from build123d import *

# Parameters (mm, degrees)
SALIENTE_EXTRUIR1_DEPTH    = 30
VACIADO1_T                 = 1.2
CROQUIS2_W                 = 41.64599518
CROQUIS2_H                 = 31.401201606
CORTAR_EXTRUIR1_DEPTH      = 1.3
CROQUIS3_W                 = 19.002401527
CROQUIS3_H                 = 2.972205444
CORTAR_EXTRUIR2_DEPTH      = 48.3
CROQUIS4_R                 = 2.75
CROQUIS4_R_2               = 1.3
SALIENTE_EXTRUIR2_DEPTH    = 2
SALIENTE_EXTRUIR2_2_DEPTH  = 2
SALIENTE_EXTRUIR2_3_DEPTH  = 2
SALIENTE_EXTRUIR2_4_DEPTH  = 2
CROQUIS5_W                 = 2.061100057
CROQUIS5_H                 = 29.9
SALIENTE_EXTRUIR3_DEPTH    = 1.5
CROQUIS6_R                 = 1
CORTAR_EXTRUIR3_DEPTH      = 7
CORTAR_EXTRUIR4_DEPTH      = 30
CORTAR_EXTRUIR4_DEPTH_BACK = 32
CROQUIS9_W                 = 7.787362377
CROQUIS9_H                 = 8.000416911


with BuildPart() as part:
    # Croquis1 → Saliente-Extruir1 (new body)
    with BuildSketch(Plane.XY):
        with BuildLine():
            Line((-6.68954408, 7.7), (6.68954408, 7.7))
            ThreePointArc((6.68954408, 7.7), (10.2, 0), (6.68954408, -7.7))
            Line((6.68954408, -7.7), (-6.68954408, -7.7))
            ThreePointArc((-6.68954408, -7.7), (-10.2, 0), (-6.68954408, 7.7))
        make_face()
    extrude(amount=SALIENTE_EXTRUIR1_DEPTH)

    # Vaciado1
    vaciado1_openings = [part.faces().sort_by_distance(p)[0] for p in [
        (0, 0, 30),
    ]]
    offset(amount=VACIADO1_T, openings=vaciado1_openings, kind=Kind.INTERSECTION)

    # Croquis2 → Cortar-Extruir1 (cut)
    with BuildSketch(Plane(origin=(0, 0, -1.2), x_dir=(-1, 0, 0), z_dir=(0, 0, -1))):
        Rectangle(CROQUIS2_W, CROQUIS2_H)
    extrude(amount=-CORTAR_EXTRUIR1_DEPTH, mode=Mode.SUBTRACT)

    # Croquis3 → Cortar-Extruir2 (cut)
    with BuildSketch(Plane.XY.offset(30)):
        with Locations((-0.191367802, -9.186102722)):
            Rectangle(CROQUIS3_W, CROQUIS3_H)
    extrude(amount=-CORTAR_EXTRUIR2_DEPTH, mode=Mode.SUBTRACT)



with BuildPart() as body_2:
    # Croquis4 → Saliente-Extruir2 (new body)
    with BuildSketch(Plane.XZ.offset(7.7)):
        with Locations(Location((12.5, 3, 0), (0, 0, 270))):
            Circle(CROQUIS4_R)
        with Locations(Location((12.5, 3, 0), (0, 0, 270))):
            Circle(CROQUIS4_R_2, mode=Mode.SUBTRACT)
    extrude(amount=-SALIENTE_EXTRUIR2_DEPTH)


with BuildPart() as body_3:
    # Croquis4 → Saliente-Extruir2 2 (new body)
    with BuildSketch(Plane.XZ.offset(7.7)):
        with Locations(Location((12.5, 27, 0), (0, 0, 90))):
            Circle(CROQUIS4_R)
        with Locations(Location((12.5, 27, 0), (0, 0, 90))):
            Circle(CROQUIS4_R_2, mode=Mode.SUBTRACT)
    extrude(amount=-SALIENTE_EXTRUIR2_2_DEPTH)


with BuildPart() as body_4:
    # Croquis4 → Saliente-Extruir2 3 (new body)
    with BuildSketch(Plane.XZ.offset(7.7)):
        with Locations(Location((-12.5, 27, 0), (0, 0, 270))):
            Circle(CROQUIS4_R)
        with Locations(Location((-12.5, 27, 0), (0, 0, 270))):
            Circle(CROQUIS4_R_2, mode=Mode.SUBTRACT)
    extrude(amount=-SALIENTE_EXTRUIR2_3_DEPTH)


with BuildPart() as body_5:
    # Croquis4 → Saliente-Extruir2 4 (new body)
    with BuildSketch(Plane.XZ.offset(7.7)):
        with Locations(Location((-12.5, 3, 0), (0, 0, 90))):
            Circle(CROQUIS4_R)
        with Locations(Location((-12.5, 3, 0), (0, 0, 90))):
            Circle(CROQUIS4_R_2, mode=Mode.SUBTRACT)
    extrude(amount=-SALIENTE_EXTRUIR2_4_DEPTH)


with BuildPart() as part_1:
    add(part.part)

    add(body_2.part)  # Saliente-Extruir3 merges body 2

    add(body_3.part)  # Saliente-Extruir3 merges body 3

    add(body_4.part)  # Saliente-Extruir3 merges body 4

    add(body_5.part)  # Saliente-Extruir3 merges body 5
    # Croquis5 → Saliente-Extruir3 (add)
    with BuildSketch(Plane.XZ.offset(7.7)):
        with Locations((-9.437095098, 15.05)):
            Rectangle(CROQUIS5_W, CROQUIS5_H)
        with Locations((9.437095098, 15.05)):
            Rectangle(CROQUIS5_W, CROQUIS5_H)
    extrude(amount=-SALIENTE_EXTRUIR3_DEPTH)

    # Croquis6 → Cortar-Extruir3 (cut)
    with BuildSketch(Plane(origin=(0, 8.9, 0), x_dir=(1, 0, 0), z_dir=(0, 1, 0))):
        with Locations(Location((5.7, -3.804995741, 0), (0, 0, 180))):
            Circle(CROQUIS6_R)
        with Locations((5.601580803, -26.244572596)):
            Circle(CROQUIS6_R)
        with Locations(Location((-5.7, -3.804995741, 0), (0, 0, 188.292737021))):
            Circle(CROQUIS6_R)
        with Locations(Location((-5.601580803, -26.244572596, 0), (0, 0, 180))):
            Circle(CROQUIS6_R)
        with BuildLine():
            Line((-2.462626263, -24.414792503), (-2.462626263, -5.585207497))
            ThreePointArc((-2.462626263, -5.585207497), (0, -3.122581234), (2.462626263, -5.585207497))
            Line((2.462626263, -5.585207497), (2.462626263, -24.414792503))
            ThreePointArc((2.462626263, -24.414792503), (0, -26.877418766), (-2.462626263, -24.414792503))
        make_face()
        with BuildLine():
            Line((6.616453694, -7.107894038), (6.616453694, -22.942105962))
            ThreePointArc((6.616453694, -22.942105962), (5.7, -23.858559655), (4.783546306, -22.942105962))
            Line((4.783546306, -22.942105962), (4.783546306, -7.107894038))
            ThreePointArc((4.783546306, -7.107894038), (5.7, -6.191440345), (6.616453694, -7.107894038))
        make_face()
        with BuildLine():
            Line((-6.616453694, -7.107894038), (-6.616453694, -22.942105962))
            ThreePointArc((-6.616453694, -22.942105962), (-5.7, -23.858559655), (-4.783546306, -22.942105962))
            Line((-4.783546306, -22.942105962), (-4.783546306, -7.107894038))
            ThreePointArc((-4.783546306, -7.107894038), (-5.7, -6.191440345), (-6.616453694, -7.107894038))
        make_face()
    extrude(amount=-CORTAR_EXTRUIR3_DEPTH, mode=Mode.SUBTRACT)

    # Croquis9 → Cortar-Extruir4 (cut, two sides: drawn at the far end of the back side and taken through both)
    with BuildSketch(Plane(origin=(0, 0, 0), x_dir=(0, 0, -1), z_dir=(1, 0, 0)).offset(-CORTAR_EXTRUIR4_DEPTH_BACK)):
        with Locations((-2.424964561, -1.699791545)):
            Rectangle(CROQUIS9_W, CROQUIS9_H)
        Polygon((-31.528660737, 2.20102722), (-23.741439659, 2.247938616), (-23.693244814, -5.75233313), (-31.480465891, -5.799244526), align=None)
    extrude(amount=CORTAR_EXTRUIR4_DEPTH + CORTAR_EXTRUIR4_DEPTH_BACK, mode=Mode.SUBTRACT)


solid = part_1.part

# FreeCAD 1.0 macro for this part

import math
import FreeCAD as App
import Part
import Sketcher


def faces_at(feature, points):
    """Names of the faces that lie closest to the given points."""
    faces = feature.Shape.Faces
    near = lambda p: min(range(len(faces)), key=lambda i: faces[i].distToShape(Part.Vertex(*p))[0])
    return sorted({f"Face{near(p) + 1}" for p in points})


def add_polygon(sketch, points):
    """Adds a closed chain of lines whose ends are joined by coincident constraints."""
    first, n = sketch.GeometryCount, len(points)
    for a, b in zip(points, points[1:] + points[:1]):
        sketch.addGeometry(Part.LineSegment(App.Vector(*a, 0), App.Vector(*b, 0)), False)
    for i in range(n):
        sketch.addConstraint(Sketcher.Constraint("Coincident", first + i, 2, first + (i + 1) % n, 1))

doc = App.newDocument("Part")
body = doc.addObject("PartDesign::Body", "Body")

# Sketch on XY plane
sketch1 = body.newObject("Sketcher::SketchObject", "Sketch")
sketch1.AttachmentSupport = (doc.getObject("XY_Plane"), [""])
sketch1.MapMode = "FlatFace"
sketch1.addGeometry([
    Part.LineSegment(App.Vector(7, 8, 0), App.Vector(-7, 8, 0)),
    Part.ArcOfCircle(Part.Circle(App.Vector(0, 0, 0), App.Vector(0, 0, 1), 10), math.radians(131), math.radians(229)),
    Part.LineSegment(App.Vector(-7, -8, 0), App.Vector(7, -8, 0)),
    Part.ArcOfCircle(Part.Circle(App.Vector(0, 0, 0), App.Vector(0, 0, 1), 10), math.radians(-49), math.radians(49)),
], False)
sketch1.addConstraint([
    Sketcher.Constraint("Coincident", 0, 2, 1, 1),
    Sketcher.Constraint("Coincident", 1, 2, 2, 1),
    Sketcher.Constraint("Coincident", 2, 2, 3, 1),
    Sketcher.Constraint("Coincident", 3, 2, 0, 1),
    Sketcher.Constraint("Horizontal", 0),
    Sketcher.Constraint("Horizontal", 2),
    Sketcher.Constraint("Coincident", 1, 3, -1, 1),
    Sketcher.Constraint("Coincident", 3, 3, -1, 1),
    Sketcher.Constraint("Equal", 1, 3),
    Sketcher.Constraint("Vertical", 0, 2, 1, 2),
    Sketcher.Constraint("Radius", 1, 10.2),
    Sketcher.Constraint("DistanceY", -1, 1, 0, 2, 7.7),
])
pad1 = body.newObject("PartDesign::Pad", "Pad")
pad1.Profile = sketch1
pad1.Length = 30
doc.recompute()

thickness = body.newObject("PartDesign::Thickness", "Thickness")
thickness.Base = (pad1, faces_at(pad1, [(0, 0, 30)]))
thickness.Value = 1.2
thickness.Reversed = False
thickness.Join = "Intersection"

# Sketch on XY plane
sketch2 = body.newObject("Sketcher::SketchObject", "Sketch001")
sketch2.AttachmentSupport = (doc.getObject("XY_Plane"), [""])
sketch2.MapMode = "FlatFace"
sketch2.AttachmentOffset = App.Placement(App.Vector(0, 0, -1.2), App.Rotation())
add_polygon(sketch2, [(21, 16), (21, -16), (-21, -16), (-21, 16)])  # lines 0-3
sketch2.addConstraint([
    Sketcher.Constraint("Vertical", 0),
    Sketcher.Constraint("Horizontal", 1),
    Sketcher.Constraint("Vertical", 2),
    Sketcher.Constraint("Horizontal", 3),
    Sketcher.Constraint("Symmetric", 0, 2, 2, 2, -1, 1),
    Sketcher.Constraint("DistanceY", 0, 2, 0, 1, 31.401202),
    Sketcher.Constraint("DistanceX", 1, 2, 1, 1, 41.645995),
])
pocket1 = body.newObject("PartDesign::Pocket", "Pocket")
pocket1.Profile = sketch2
pocket1.Length = 1.3
pocket1.Reversed = True

# Sketch on XY plane
sketch3 = body.newObject("Sketcher::SketchObject", "Sketch002")
sketch3.AttachmentSupport = (doc.getObject("XY_Plane"), [""])
sketch3.MapMode = "FlatFace"
sketch3.AttachmentOffset = App.Placement(App.Vector(0, 0, 30), App.Rotation())
add_polygon(sketch3, [(-9.7, -7.7), (-9.7, -10.7), (9.3, -10.7), (9.3, -7.7)])  # lines 0-3
sketch3.addConstraint([
    Sketcher.Constraint("Vertical", 0),
    Sketcher.Constraint("Horizontal", 1),
    Sketcher.Constraint("Vertical", 2),
    Sketcher.Constraint("Horizontal", 3),
    Sketcher.Constraint("DistanceY", 2, 2, -1, 1, 7.7),
    Sketcher.Constraint("DistanceX", 1, 1, 1, 2, 19.002402),
    Sketcher.Constraint("DistanceY", 0, 2, 0, 1, 2.972205),
    Sketcher.Constraint("DistanceX", 0, 2, -1, 1, 9.692569),
])
pocket2 = body.newObject("PartDesign::Pocket", "Pocket001")
pocket2.Profile = sketch3
pocket2.Length = 48.3
body2 = doc.addObject("PartDesign::Body", "Body001")

# Sketch on XZ plane
sketch4 = body2.newObject("Sketcher::SketchObject", "Sketch003")
sketch4.AttachmentSupport = (doc.getObject("XZ_Plane001"), [""])
sketch4.MapMode = "FlatFace"
sketch4.AttachmentOffset = App.Placement(App.Vector(0, 0, 7.7), App.Rotation())
sketch4.addGeometry([
    Part.Circle(App.Vector(12.5, 3, 0), App.Vector(0, 0, 1), 2.8),
    Part.Circle(App.Vector(12.5, 3, 0), App.Vector(0, 0, 1), 1.3),
], False)
sketch4.addConstraint([
    Sketcher.Constraint("Coincident", 1, 3, 0, 3),
    Sketcher.Constraint("Diameter", 0, 5.5),
    Sketcher.Constraint("Diameter", 1, 2.6),
    Sketcher.Constraint("DistanceY", -1, 1, 0, 3, 3.0),
    Sketcher.Constraint("DistanceX", -1, 1, 0, 3, 12.5),
])
pad2 = body2.newObject("PartDesign::Pad", "Pad001")
pad2.Profile = sketch4
pad2.Length = 2
pad2.Reversed = True
body3 = doc.addObject("PartDesign::Body", "Body002")

# Sketch on XZ plane
sketch5 = body3.newObject("Sketcher::SketchObject", "Sketch004")
sketch5.AttachmentSupport = (doc.getObject("XZ_Plane002"), [""])
sketch5.MapMode = "FlatFace"
sketch5.AttachmentOffset = App.Placement(App.Vector(0, 0, 7.7), App.Rotation())
sketch5.addGeometry([
    Part.Circle(App.Vector(12.5, 27, 0), App.Vector(0, 0, 1), 2.8),
    Part.Circle(App.Vector(12.5, 27, 0), App.Vector(0, 0, 1), 1.3),
], False)
sketch5.addConstraint([
    Sketcher.Constraint("Coincident", 1, 3, 0, 3),
    Sketcher.Constraint("Diameter", 0, 5.5),
    Sketcher.Constraint("Diameter", 1, 2.6),
    Sketcher.Constraint("DistanceY", -1, 1, 0, 3, 27.0),
    Sketcher.Constraint("DistanceX", -1, 1, 0, 3, 12.5),
])
pad3 = body3.newObject("PartDesign::Pad", "Pad002")
pad3.Profile = sketch5
pad3.Length = 2
pad3.Reversed = True
body4 = doc.addObject("PartDesign::Body", "Body003")

# Sketch on XZ plane
sketch6 = body4.newObject("Sketcher::SketchObject", "Sketch005")
sketch6.AttachmentSupport = (doc.getObject("XZ_Plane003"), [""])
sketch6.MapMode = "FlatFace"
sketch6.AttachmentOffset = App.Placement(App.Vector(0, 0, 7.7), App.Rotation())
sketch6.addGeometry([
    Part.Circle(App.Vector(-12.5, 27, 0), App.Vector(0, 0, 1), 2.8),
    Part.Circle(App.Vector(-12.5, 27, 0), App.Vector(0, 0, 1), 1.3),
], False)
sketch6.addConstraint([
    Sketcher.Constraint("Coincident", 1, 3, 0, 3),
    Sketcher.Constraint("Diameter", 0, 5.5),
    Sketcher.Constraint("Diameter", 1, 2.6),
    Sketcher.Constraint("DistanceY", -1, 1, 0, 3, 27.0),
    Sketcher.Constraint("DistanceX", 0, 3, -1, 1, 12.5),
])
pad4 = body4.newObject("PartDesign::Pad", "Pad003")
pad4.Profile = sketch6
pad4.Length = 2
pad4.Reversed = True
body5 = doc.addObject("PartDesign::Body", "Body004")

# Sketch on XZ plane
sketch7 = body5.newObject("Sketcher::SketchObject", "Sketch006")
sketch7.AttachmentSupport = (doc.getObject("XZ_Plane004"), [""])
sketch7.MapMode = "FlatFace"
sketch7.AttachmentOffset = App.Placement(App.Vector(0, 0, 7.7), App.Rotation())
sketch7.addGeometry([
    Part.Circle(App.Vector(-12.5, 3, 0), App.Vector(0, 0, 1), 2.8),
    Part.Circle(App.Vector(-12.5, 3, 0), App.Vector(0, 0, 1), 1.3),
], False)
sketch7.addConstraint([
    Sketcher.Constraint("Coincident", 1, 3, 0, 3),
    Sketcher.Constraint("Diameter", 0, 5.5),
    Sketcher.Constraint("Diameter", 1, 2.6),
    Sketcher.Constraint("DistanceY", -1, 1, 0, 3, 3.0),
    Sketcher.Constraint("DistanceX", 0, 3, -1, 1, 12.5),
])
pad5 = body5.newObject("PartDesign::Pad", "Pad004")
pad5.Profile = sketch7
pad5.Length = 2
pad5.Reversed = True
doc.recompute()

boolean = body.newObject("PartDesign::Boolean", "Boolean")
boolean.Type = "Fuse"
boolean.addObjects([body2])
doc.recompute()

boolean2 = body.newObject("PartDesign::Boolean", "Boolean001")
boolean2.Type = "Fuse"
boolean2.addObjects([body3])
doc.recompute()

boolean3 = body.newObject("PartDesign::Boolean", "Boolean002")
boolean3.Type = "Fuse"
boolean3.addObjects([body4])
doc.recompute()

boolean4 = body.newObject("PartDesign::Boolean", "Boolean003")
boolean4.Type = "Fuse"
boolean4.addObjects([body5])

# Sketch on XZ plane
sketch8 = body.newObject("Sketcher::SketchObject", "Sketch007")
sketch8.AttachmentSupport = (doc.getObject("XZ_Plane"), [""])
sketch8.MapMode = "FlatFace"
sketch8.AttachmentOffset = App.Placement(App.Vector(0, 0, 7.7), App.Rotation())
add_polygon(sketch8, [(-10.5, 30), (-10.5, 0.1), (-8.4, 0.1), (-8.4, 30)])  # lines 0-3
add_polygon(sketch8, [(8.4, 30), (8.4, 0.1), (10.5, 0.1), (10.5, 30)])  # lines 4-7
sketch8.addConstraint([
    Sketcher.Constraint("Vertical", 0),
    Sketcher.Constraint("Horizontal", 1),
    Sketcher.Constraint("Vertical", 2),
    Sketcher.Constraint("Horizontal", 3),
    Sketcher.Constraint("Vertical", 4),
    Sketcher.Constraint("Horizontal", 5),
    Sketcher.Constraint("Vertical", 6),
    Sketcher.Constraint("Horizontal", 7),
    Sketcher.Constraint("Symmetric", 1, 2, 4, 2, -2),
    Sketcher.Constraint("Symmetric", 3, 2, 6, 2, -2),
    Sketcher.Constraint("DistanceY", 0, 2, 0, 1, 29.9),
    Sketcher.Constraint("DistanceY", -1, 1, 2, 2, 30.0),
    Sketcher.Constraint("DistanceX", 1, 1, 1, 2, 2.0611),
    Sketcher.Constraint("DistanceX", 1, 2, 4, 2, 16.81309),
])
pad6 = body.newObject("PartDesign::Pad", "Pad005")
pad6.Profile = sketch8
pad6.Length = 1.5
pad6.Reversed = True

# Sketch on XZ plane
sketch9 = body.newObject("Sketcher::SketchObject", "Sketch008")
sketch9.AttachmentSupport = (doc.getObject("XZ_Plane"), [""])
sketch9.MapMode = "FlatFace"
sketch9.AttachmentOffset = App.Placement(App.Vector(0, 0, -8.9), App.Rotation())
sketch9.addGeometry([
    Part.Circle(App.Vector(5.7, 3.8, 0), App.Vector(0, 0, 1), 1),  # 0
    Part.Circle(App.Vector(5.6, 26.2, 0), App.Vector(0, 0, 1), 1),  # 1
    Part.Circle(App.Vector(-5.7, 3.8, 0), App.Vector(0, 0, 1), 1),  # 2
    Part.Circle(App.Vector(-5.6, 26.2, 0), App.Vector(0, 0, 1), 1),  # 3
    Part.LineSegment(App.Vector(-2.5, 5.6, 0), App.Vector(-2.5, 24.4, 0)),  # 4
    Part.ArcOfCircle(Part.Circle(App.Vector(0, 24.4, 0), App.Vector(0, 0, 1), 2.5), math.radians(0), math.radians(180)),  # 5
    Part.LineSegment(App.Vector(2.5, 24.4, 0), App.Vector(2.5, 5.6, 0)),  # 6
    Part.ArcOfCircle(Part.Circle(App.Vector(0, 5.6, 0), App.Vector(0, 0, 1), 2.5), math.radians(180), math.radians(360)),  # 7
    Part.LineSegment(App.Vector(6.6, 22.9, 0), App.Vector(6.6, 7.1, 0)),  # 8
    Part.ArcOfCircle(Part.Circle(App.Vector(5.7, 7.1, 0), App.Vector(0, 0, 1), 0.9), math.radians(-180), math.radians(0)),  # 9
    Part.LineSegment(App.Vector(4.8, 7.1, 0), App.Vector(4.8, 22.9, 0)),  # 10
    Part.ArcOfCircle(Part.Circle(App.Vector(5.7, 22.9, 0), App.Vector(0, 0, 1), 0.9), math.radians(0), math.radians(180)),  # 11
    Part.LineSegment(App.Vector(-6.6, 7.1, 0), App.Vector(-6.6, 22.9, 0)),  # 12
    Part.ArcOfCircle(Part.Circle(App.Vector(-5.7, 22.9, 0), App.Vector(0, 0, 1), 0.9), math.radians(0), math.radians(180)),  # 13
    Part.LineSegment(App.Vector(-4.8, 22.9, 0), App.Vector(-4.8, 7.1, 0)),  # 14
    Part.ArcOfCircle(Part.Circle(App.Vector(-5.7, 7.1, 0), App.Vector(0, 0, 1), 0.9), math.radians(-180), math.radians(0)),  # 15
], False)
sketch9.addConstraint([
    Sketcher.Constraint("Tangent", 4, 2, 5, 2),
    Sketcher.Constraint("Tangent", 5, 1, 6, 1),
    Sketcher.Constraint("Tangent", 6, 2, 7, 2),
    Sketcher.Constraint("Tangent", 7, 1, 4, 1),
    Sketcher.Constraint("Tangent", 8, 2, 9, 2),
    Sketcher.Constraint("Tangent", 9, 1, 10, 1),
    Sketcher.Constraint("Tangent", 10, 2, 11, 2),
    Sketcher.Constraint("Tangent", 11, 1, 8, 1),
    Sketcher.Constraint("Tangent", 12, 2, 13, 2),
    Sketcher.Constraint("Tangent", 13, 1, 14, 1),
    Sketcher.Constraint("Tangent", 14, 2, 15, 2),
    Sketcher.Constraint("Tangent", 15, 1, 12, 1),
    Sketcher.Constraint("Vertical", 4),
    Sketcher.Constraint("Vertical", 6),
    Sketcher.Constraint("Vertical", 8),
    Sketcher.Constraint("Vertical", 10),
    Sketcher.Constraint("Vertical", 12),
    Sketcher.Constraint("Vertical", 14),
    Sketcher.Constraint("Equal", 0, 1),
    Sketcher.Constraint("Equal", 1, 2),
    Sketcher.Constraint("Equal", 2, 3),
    Sketcher.Constraint("Equal", 11, 13),
    Sketcher.Constraint("Symmetric", 0, 3, 2, 3, -2),
    Sketcher.Constraint("Symmetric", 1, 3, 3, 3, -2),
    Sketcher.Constraint("Symmetric", 11, 3, 13, 3, -2),
    Sketcher.Constraint("PointOnObject", 5, 3, -2),
    Sketcher.Constraint("Horizontal", 9, 3, 15, 3),
    Sketcher.Constraint("Vertical", 0, 3, 9, 3),
    Sketcher.Constraint("Diameter", 0, 2.0),
    Sketcher.Constraint("DistanceX", -1, 1, 0, 3, 5.7),
    Sketcher.Constraint("Radius", 5, 2.462626),
    Sketcher.Constraint("Radius", 9, 0.916454),
    Sketcher.Constraint("DistanceY", 8, 2, 8, 1, 15.834212),
    Sketcher.Constraint("DistanceY", 0, 3, 9, 3, 3.302898),
    Sketcher.Constraint("DistanceY", 9, 3, 5, 3, 17.306898),
    Sketcher.Constraint("DistanceY", 7, 3, 11, 3, 17.356898),
    Sketcher.Constraint("DistanceX", -1, 1, 1, 3, 5.601581),
    Sketcher.Constraint("DistanceY", 5, 3, 1, 3, 1.82978),
    Sketcher.Constraint("DistanceY", -1, 1, 0, 3, 3.804996),
])
pocket3 = body.newObject("PartDesign::Pocket", "Pocket002")
pocket3.Profile = sketch9
pocket3.Length = 7
pocket3.Reversed = True

# Sketch on YZ plane
sketch10 = body.newObject("Sketcher::SketchObject", "Sketch009")
sketch10.AttachmentSupport = (doc.getObject("YZ_Plane"), [""])
sketch10.MapMode = "FlatFace"
add_polygon(sketch10, [(2, 6), (-6, 6), (-6, -1), (2, -1)])  # lines 0-3
add_polygon(sketch10, [(2, 24), (2, 32), (-6, 31), (-6, 24)])  # lines 4-7
sketch10.addConstraint([
    Sketcher.Constraint("Horizontal", 0),
    Sketcher.Constraint("Vertical", 1),
    Sketcher.Constraint("Horizontal", 2),
    Sketcher.Constraint("Vertical", 3),
    Sketcher.Constraint("Perpendicular", 4, 5),
    Sketcher.Constraint("Perpendicular", 5, 6),
    Sketcher.Constraint("Perpendicular", 6, 7),
    Sketcher.Constraint("DistanceX", 0, 2, -1, 1, 5.7),
    Sketcher.Constraint("DistanceY", 0, 2, 6, 2, 17.374599),
    Sketcher.Constraint("DistanceX", 0, 2, 0, 1, 8.000417),
    Sketcher.Constraint("DistanceY", 1, 2, 1, 1, 7.787362),
    Sketcher.Constraint("DistanceY", -1, 1, 4, 2, 31.528661),
    Sketcher.Constraint("DistanceX", -1, 1, 7, 2, 2.247939),
    Sketcher.Constraint("DistanceY", -1, 1, 7, 2, 23.74144),
    Sketcher.Constraint("DistanceX", 4, 2, 3, 2, 0.09939),
    Sketcher.Constraint("DistanceX", 5, 2, 4, 2, 8.000272),
])
pocket4 = body.newObject("PartDesign::Pocket", "Pocket003")
pocket4.Profile = sketch10
pocket4.Type = "ThroughAll"
pocket4.Midplane = True

doc.recompute()
